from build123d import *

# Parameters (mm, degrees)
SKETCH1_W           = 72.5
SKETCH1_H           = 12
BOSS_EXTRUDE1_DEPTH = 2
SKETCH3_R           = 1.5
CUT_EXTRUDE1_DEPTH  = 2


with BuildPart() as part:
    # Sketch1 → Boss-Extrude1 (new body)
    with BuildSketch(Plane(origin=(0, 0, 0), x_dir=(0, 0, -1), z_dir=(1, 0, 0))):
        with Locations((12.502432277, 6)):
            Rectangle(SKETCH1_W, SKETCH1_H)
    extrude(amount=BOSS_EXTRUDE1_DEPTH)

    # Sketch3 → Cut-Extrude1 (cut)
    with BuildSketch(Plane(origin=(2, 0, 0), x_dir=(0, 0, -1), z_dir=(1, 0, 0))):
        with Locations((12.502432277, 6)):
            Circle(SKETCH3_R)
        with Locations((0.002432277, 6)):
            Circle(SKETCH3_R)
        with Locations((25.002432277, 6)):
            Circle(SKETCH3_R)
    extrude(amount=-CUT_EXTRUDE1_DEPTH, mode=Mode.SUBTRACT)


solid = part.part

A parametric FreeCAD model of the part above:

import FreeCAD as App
import Part
import Sketcher
from FreeCAD import Vector


def add_polygon(sketch, points):
    """Adds a closed chain of lines whose ends are joined by coincident constraints."""
    first, n = sketch.GeometryCount, len(points)
    for a, b in zip(points, points[1:] + points[:1]):
        sketch.addGeometry(Part.LineSegment(App.Vector(*a, 0), App.Vector(*b, 0)), False)
    for i in range(n):
        sketch.addConstraint(Sketcher.Constraint("Coincident", first + i, 2, first + (i + 1) % n, 1))

doc = App.newDocument("Part")
body = doc.addObject("PartDesign::Body", "Body")

# Sketch on YZ plane
sketch1 = doc.addObject("Sketcher::SketchObject", "Sketch")
body.addObject(sketch1)
sketch1.AttachmentSupport = (doc.YZ_Plane, [""])
sketch1.MapMode = "FlatFace"
add_polygon(sketch1, [(12, 24), (0, 24), (0, -49), (12, -49)])  # lines 0-3
sketch1.addConstraint([
    Sketcher.Constraint("Horizontal", 0),
    Sketcher.Constraint("Vertical", 1),
    Sketcher.Constraint("Horizontal", 2),
    Sketcher.Constraint("Vertical", 3),
    Sketcher.Constraint("PointOnObject", 0, 2, -2),
    Sketcher.Constraint("DistanceX", 0, 2, 0, 1, 12.0),
    Sketcher.Constraint("DistanceY", 1, 2, 1, 1, 72.5),
    Sketcher.Constraint("DistanceY", -1, 1, 0, 2, 23.747568),
])
pad1 = doc.addObject("PartDesign::Pad", "Pad")
body.addObject(pad1)
pad1.Profile = sketch1
pad1.Length = 2

# Sketch on YZ plane
sketch2 = doc.addObject("Sketcher::SketchObject", "Sketch001")
body.addObject(sketch2)
sketch2.AttachmentSupport = (doc.YZ_Plane, [""])
sketch2.MapMode = "FlatFace"
sketch2.AttachmentOffset = App.Placement(Vector(0, 0, 2), App.Rotation())
sketch2.addGeometry([
    Part.Circle(Vector(6, -12.5, 0), Vector(0, 0, 1), 1.5),
    Part.Circle(Vector(6, 0, 0), Vector(0, 0, 1), 1.5),
    Part.Circle(Vector(6, -25, 0), Vector(0, 0, 1), 1.5),
], False)
sketch2.addConstraint([
    Sketcher.Constraint("Equal", 0, 1),
    Sketcher.Constraint("Equal", 1, 2),
    Sketcher.Constraint("Vertical", 0, 3, 1, 3),
    Sketcher.Constraint("Vertical", 1, 3, 2, 3),
    Sketcher.Constraint("Diameter", 0, 3.0),
    Sketcher.Constraint("DistanceX", -1, 1, 0, 3, 6.0),
    Sketcher.Constraint("DistanceY", 2, 3, 1, 3, 25.0),
    Sketcher.Constraint("DistanceY", 0, 3, 1, 3, 12.5),
    Sketcher.Constraint("DistanceY", 0, 3, -1, 1, 12.502432),
])
pocket1 = doc.addObject("PartDesign::Pocket", "Pocket")
body.addObject(pocket1)
pocket1.Profile = sketch2
pocket1.Length = 2

doc.recompute()
